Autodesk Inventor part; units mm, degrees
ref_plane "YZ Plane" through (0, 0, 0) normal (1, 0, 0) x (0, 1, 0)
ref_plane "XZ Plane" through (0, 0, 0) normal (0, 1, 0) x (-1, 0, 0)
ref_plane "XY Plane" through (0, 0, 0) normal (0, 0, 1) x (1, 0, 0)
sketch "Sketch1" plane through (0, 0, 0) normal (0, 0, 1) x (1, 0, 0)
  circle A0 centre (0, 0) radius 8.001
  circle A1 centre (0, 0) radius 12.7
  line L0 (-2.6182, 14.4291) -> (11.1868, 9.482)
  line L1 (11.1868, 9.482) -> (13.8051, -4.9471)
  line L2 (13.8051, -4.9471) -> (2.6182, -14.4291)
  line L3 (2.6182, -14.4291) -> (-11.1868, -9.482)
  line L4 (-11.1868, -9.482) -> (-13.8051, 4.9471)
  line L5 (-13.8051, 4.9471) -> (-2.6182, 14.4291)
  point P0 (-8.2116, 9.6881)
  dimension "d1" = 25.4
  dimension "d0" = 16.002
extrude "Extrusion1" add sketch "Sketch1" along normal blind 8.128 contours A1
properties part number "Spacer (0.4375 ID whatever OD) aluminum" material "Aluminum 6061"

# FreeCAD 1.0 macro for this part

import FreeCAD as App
import Part
import Sketcher
from FreeCAD import Vector
Q = App.Units.Quantity

doc = App.newDocument("Part")
body = doc.addObject("PartDesign::Body", "Body")

sketch1 = doc.addObject("Sketcher::SketchObject", "Sketch")
body.addObject(sketch1)
sketch1.AttachmentSupport = (doc.XY_Plane, [""])
sketch1.MapMode = "FlatFace"
sketch1.addGeometry([
    Part.Circle(Vector(0, 0, 0), Vector(0, 0, 1), 12.7),
    Part.Circle(Vector(0, 0, 0), Vector(0, 0, 1), 8.001),
], False)
sketch1.addConstraint([
    Sketcher.Constraint("Coincident", 0, 3, -1, 1),
    Sketcher.Constraint("Coincident", 1, 3, -1, 1),
    Sketcher.Constraint("Diameter", 0, Q("1 in")),
    Sketcher.Constraint("Diameter", 1, Q("0.63 in")),
])
pad1 = doc.addObject("PartDesign::Pad", "Pad")
body.addObject(pad1)
pad1.Profile = sketch1
pad1.Length = Q("0.32 in")

doc.recompute()
